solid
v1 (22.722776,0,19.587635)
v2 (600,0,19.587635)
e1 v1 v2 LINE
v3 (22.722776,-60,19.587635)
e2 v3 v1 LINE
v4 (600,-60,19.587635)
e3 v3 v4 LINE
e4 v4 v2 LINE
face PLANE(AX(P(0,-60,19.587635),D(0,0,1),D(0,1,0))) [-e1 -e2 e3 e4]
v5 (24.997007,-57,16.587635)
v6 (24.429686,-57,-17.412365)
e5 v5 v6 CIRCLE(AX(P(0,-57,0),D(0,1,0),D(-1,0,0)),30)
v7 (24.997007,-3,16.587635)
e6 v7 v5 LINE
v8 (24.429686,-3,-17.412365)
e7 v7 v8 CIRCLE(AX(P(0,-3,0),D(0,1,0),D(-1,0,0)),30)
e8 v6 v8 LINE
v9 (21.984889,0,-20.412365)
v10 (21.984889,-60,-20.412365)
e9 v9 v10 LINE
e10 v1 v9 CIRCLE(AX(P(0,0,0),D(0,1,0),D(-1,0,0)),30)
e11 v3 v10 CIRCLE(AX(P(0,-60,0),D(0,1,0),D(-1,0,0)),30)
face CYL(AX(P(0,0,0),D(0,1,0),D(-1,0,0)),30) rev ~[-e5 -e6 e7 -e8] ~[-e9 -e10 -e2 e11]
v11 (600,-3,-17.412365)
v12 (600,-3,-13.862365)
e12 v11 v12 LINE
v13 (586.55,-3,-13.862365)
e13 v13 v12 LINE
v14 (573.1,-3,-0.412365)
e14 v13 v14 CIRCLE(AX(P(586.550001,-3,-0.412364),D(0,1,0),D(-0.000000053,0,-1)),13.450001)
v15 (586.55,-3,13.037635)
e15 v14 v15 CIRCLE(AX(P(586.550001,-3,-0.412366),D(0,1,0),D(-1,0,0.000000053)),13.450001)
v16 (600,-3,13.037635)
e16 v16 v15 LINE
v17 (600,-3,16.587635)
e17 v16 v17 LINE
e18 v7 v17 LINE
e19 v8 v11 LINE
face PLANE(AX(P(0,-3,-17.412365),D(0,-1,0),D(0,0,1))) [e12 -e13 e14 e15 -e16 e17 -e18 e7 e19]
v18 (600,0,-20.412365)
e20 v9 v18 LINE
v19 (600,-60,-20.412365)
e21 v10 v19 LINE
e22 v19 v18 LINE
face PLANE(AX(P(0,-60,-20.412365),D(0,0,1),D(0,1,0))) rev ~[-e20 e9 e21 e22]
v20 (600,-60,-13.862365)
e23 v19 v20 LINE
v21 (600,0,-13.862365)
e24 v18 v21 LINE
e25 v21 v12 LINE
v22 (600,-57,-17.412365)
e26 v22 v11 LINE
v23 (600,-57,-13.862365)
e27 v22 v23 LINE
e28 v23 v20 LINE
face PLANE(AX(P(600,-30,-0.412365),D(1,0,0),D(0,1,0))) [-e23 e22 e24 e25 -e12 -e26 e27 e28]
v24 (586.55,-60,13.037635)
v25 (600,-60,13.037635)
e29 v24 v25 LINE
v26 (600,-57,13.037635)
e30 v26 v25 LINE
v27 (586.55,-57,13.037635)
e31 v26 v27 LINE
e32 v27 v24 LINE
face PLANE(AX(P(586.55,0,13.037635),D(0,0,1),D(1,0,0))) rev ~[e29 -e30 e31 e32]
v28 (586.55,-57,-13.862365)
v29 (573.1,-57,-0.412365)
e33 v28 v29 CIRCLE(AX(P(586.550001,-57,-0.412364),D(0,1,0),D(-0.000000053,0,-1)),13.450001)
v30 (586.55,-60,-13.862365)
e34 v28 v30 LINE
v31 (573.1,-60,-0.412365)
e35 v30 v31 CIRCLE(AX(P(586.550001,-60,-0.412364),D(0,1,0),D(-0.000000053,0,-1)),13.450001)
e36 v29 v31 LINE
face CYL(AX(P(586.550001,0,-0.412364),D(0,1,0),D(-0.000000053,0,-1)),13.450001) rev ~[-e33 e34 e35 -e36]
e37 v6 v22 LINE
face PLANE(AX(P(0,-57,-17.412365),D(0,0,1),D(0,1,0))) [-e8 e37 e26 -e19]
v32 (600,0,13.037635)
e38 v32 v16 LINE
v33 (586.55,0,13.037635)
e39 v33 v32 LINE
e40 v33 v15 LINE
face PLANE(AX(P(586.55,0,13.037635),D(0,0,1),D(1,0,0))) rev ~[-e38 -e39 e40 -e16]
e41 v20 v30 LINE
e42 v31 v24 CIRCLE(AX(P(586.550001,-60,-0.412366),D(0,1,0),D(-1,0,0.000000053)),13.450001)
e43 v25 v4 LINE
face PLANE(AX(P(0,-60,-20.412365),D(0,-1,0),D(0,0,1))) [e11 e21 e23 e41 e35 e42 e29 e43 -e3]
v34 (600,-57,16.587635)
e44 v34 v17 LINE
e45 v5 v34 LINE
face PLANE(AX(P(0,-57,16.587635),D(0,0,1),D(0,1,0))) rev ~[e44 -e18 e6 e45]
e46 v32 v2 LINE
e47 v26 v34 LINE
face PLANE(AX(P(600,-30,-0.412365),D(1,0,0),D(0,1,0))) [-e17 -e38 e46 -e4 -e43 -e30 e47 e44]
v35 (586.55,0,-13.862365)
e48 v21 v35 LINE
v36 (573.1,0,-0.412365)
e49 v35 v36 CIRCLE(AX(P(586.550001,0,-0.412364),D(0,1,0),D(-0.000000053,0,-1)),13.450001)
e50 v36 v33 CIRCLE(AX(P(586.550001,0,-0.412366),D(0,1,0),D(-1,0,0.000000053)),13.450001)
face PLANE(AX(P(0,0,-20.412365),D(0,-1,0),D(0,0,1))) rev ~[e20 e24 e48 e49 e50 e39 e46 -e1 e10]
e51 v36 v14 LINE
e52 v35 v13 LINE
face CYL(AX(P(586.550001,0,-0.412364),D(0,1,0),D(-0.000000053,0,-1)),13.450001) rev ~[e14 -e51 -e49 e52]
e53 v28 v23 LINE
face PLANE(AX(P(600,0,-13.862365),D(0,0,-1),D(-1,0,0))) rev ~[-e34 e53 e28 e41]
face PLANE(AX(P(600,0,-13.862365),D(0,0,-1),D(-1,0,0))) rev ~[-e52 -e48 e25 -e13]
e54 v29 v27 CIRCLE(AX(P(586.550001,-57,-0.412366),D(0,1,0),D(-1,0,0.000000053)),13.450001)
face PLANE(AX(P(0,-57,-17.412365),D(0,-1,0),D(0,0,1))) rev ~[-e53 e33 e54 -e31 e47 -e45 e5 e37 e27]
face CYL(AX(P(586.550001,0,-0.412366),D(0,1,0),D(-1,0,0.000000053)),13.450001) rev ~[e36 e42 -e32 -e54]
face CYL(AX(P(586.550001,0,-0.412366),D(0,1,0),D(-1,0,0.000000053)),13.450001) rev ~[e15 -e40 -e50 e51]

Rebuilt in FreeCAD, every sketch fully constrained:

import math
import FreeCAD as App
import Part
import Sketcher

doc = App.newDocument("Part")
body = doc.addObject("PartDesign::Body", "Body")

sketch1 = doc.addObject("Sketcher::SketchObject", "Sketch")
body.addObject(sketch1)
sketch1.AttachmentSupport = (doc.YZ_Plane, [""])
sketch1.MapMode = "FlatFace"
sketch1.addGeometry(Part.LineSegment(App.Vector(-60, 20, 0), App.Vector(-60, -20, 0)), False)
sketch1.addGeometry(Part.LineSegment(App.Vector(-60, -20, 0), App.Vector(0, -20, 0)), False)
sketch1.addGeometry(Part.LineSegment(App.Vector(0, -20, 0), App.Vector(0, 20, 0)), False)
sketch1.addGeometry(Part.LineSegment(App.Vector(0, 20, 0), App.Vector(-60, 20, 0)), False)
sketch1.addGeometry(Part.LineSegment(App.Vector(-3, -17, 0), App.Vector(-57, -17, 0)), False)
sketch1.addGeometry(Part.LineSegment(App.Vector(-57, -17, 0), App.Vector(-57, 17, 0)), False)
sketch1.addGeometry(Part.LineSegment(App.Vector(-57, 17, 0), App.Vector(-3, 17, 0)), False)
sketch1.addGeometry(Part.LineSegment(App.Vector(-3, 17, 0), App.Vector(-3, -17, 0)), False)
sketch1.addConstraint(Sketcher.Constraint("Coincident", 0, 2, 1, 1))
sketch1.addConstraint(Sketcher.Constraint("Coincident", 1, 2, 2, 1))
sketch1.addConstraint(Sketcher.Constraint("Coincident", 2, 2, 3, 1))
sketch1.addConstraint(Sketcher.Constraint("Coincident", 3, 2, 0, 1))
sketch1.addConstraint(Sketcher.Constraint("Coincident", 4, 2, 5, 1))
sketch1.addConstraint(Sketcher.Constraint("Coincident", 5, 2, 6, 1))
sketch1.addConstraint(Sketcher.Constraint("Coincident", 6, 2, 7, 1))
sketch1.addConstraint(Sketcher.Constraint("Coincident", 7, 2, 4, 1))
sketch1.addConstraint(Sketcher.Constraint("Vertical", 0))
sketch1.addConstraint(Sketcher.Constraint("Horizontal", 1))
sketch1.addConstraint(Sketcher.Constraint("Vertical", 2))
sketch1.addConstraint(Sketcher.Constraint("Horizontal", 3))
sketch1.addConstraint(Sketcher.Constraint("Horizontal", 4))
sketch1.addConstraint(Sketcher.Constraint("Vertical", 5))
sketch1.addConstraint(Sketcher.Constraint("Horizontal", 6))
sketch1.addConstraint(Sketcher.Constraint("Vertical", 7))
sketch1.addConstraint(Sketcher.Constraint("PointOnObject", 1, 2, -2))
sketch1.addConstraint(Sketcher.Constraint("DistanceX", 1, 1, 1, 2, 60.0))
sketch1.addConstraint(Sketcher.Constraint("DistanceX", 4, 2, 4, 1, 54.0))
sketch1.addConstraint(Sketcher.Constraint("DistanceY", 0, 2, 0, 1, 40.0))
sketch1.addConstraint(Sketcher.Constraint("DistanceY", 5, 1, 5, 2, 34.0))
sketch1.addConstraint(Sketcher.Constraint("DistanceX", 4, 2, -1, 1, 57.0))
sketch1.addConstraint(Sketcher.Constraint("DistanceY", 0, 2, 4, 2, 3.0))
sketch1.addConstraint(Sketcher.Constraint("DistanceY", 0, 2, -1, 1, 20.412365))
pad1 = doc.addObject("PartDesign::Pad", "Pad")
body.addObject(pad1)
pad1.Profile = sketch1
pad1.Length = 600

sketch2 = doc.addObject("Sketcher::SketchObject", "Sketch001")
body.addObject(sketch2)
sketch2.AttachmentSupport = (doc.XZ_Plane, [""])
sketch2.MapMode = "FlatFace"
sketch2.addGeometry(Part.ArcOfCircle(Part.Circle(App.Vector(587, 0, 0), App.Vector(0, 0, 1), 13), math.radians(-180), math.radians(-90)), False)
sketch2.addGeometry(Part.ArcOfCircle(Part.Circle(App.Vector(587, 0, 0), App.Vector(0, 0, 1), 13), math.radians(90), math.radians(180)), False)
sketch2.addGeometry(Part.LineSegment(App.Vector(587, 13, 0), App.Vector(600, 13, 0)), False)
sketch2.addGeometry(Part.LineSegment(App.Vector(600, 13, 0), App.Vector(600, -14, 0)), False)
sketch2.addGeometry(Part.LineSegment(App.Vector(600, -14, 0), App.Vector(587, -14, 0)), False)
sketch2.addGeometry(Part.Circle(App.Vector(0, 0, 0), App.Vector(0, 0, 1), 30), False)
sketch2.addConstraint(Sketcher.Constraint("Tangent", 0, 1, 1, 2))
sketch2.addConstraint(Sketcher.Constraint("Tangent", 1, 1, 2, 1))
sketch2.addConstraint(Sketcher.Constraint("Coincident", 2, 2, 3, 1))
sketch2.addConstraint(Sketcher.Constraint("Coincident", 3, 2, 4, 1))
sketch2.addConstraint(Sketcher.Constraint("Tangent", 4, 2, 0, 2))
sketch2.addConstraint(Sketcher.Constraint("Horizontal", 2))
sketch2.addConstraint(Sketcher.Constraint("Vertical", 3))
sketch2.addConstraint(Sketcher.Constraint("Horizontal", 4))
sketch2.addConstraint(Sketcher.Constraint("Coincident", 5, 3, -1, 1))
sketch2.addConstraint(Sketcher.Constraint("Equal", 0, 1))
sketch2.addConstraint(Sketcher.Constraint("Horizontal", 1, 3, 0, 1))
sketch2.addConstraint(Sketcher.Constraint("Diameter", 5, 60.0))
sketch2.addConstraint(Sketcher.Constraint("Radius", 0, 13.450001))
sketch2.addConstraint(Sketcher.Constraint("DistanceX", -1, 1, 2, 2, 600.0))
sketch2.addConstraint(Sketcher.Constraint("DistanceX", 2, 1, 2, 2, 13.45))
sketch2.addConstraint(Sketcher.Constraint("DistanceY", 0, 3, -1, 1, 0.412364))
pocket1 = doc.addObject("PartDesign::Pocket", "Pocket")
body.addObject(pocket1)
pocket1.Profile = sketch2
pocket1.Length = 60
pocket1.Reversed = True

sketch3 = doc.addObject("Sketcher::SketchObject", "Sketch002")
body.addObject(sketch3)
sketch3.AttachmentSupport = (doc.XZ_Plane, [""])
sketch3.MapMode = "FlatFace"
sketch3.addGeometry(Part.ArcOfCircle(Part.Circle(App.Vector(587, 0, 0), App.Vector(0, 0, 1), 13), math.radians(-180), math.radians(-90)), False)
sketch3.addGeometry(Part.ArcOfCircle(Part.Circle(App.Vector(587, 0, 0), App.Vector(0, 0, 1), 13), math.radians(90), math.radians(180)), False)
sketch3.addGeometry(Part.ArcOfCircle(Part.Circle(App.Vector(587, 0, 0), App.Vector(0, 0, 1), 13), math.radians(-90), math.radians(90)), False)
sketch3.addGeometry(Part.Circle(App.Vector(0, 0, 0), App.Vector(0, 0, 1), 30), False)
sketch3.addConstraint(Sketcher.Constraint("Tangent", 0, 1, 1, 2))
sketch3.addConstraint(Sketcher.Constraint("Tangent", 1, 1, 2, 2))
sketch3.addConstraint(Sketcher.Constraint("Tangent", 2, 1, 0, 2))
sketch3.addConstraint(Sketcher.Constraint("Coincident", 3, 3, -1, 1))
sketch3.addConstraint(Sketcher.Constraint("Horizontal", 2, 3, 0, 1))
sketch3.addConstraint(Sketcher.Constraint("Vertical", 2, 3, 1, 1))
sketch3.addConstraint(Sketcher.Constraint("Vertical", 1, 1, 2, 1))
sketch3.addConstraint(Sketcher.Constraint("Diameter", 3, 60.0))
sketch3.addConstraint(Sketcher.Constraint("Radius", 0, 13.450001))
sketch3.addConstraint(Sketcher.Constraint("DistanceX", -1, 1, 0, 1, 573.1))
sketch3.addConstraint(Sketcher.Constraint("DistanceY", 0, 3, -1, 1, 0.412364))
pocket2 = doc.addObject("PartDesign::Pocket", "Pocket001")
body.addObject(pocket2)
pocket2.Profile = sketch3
pocket2.Length = 25
pocket2.Reversed = True

doc.recompute()
